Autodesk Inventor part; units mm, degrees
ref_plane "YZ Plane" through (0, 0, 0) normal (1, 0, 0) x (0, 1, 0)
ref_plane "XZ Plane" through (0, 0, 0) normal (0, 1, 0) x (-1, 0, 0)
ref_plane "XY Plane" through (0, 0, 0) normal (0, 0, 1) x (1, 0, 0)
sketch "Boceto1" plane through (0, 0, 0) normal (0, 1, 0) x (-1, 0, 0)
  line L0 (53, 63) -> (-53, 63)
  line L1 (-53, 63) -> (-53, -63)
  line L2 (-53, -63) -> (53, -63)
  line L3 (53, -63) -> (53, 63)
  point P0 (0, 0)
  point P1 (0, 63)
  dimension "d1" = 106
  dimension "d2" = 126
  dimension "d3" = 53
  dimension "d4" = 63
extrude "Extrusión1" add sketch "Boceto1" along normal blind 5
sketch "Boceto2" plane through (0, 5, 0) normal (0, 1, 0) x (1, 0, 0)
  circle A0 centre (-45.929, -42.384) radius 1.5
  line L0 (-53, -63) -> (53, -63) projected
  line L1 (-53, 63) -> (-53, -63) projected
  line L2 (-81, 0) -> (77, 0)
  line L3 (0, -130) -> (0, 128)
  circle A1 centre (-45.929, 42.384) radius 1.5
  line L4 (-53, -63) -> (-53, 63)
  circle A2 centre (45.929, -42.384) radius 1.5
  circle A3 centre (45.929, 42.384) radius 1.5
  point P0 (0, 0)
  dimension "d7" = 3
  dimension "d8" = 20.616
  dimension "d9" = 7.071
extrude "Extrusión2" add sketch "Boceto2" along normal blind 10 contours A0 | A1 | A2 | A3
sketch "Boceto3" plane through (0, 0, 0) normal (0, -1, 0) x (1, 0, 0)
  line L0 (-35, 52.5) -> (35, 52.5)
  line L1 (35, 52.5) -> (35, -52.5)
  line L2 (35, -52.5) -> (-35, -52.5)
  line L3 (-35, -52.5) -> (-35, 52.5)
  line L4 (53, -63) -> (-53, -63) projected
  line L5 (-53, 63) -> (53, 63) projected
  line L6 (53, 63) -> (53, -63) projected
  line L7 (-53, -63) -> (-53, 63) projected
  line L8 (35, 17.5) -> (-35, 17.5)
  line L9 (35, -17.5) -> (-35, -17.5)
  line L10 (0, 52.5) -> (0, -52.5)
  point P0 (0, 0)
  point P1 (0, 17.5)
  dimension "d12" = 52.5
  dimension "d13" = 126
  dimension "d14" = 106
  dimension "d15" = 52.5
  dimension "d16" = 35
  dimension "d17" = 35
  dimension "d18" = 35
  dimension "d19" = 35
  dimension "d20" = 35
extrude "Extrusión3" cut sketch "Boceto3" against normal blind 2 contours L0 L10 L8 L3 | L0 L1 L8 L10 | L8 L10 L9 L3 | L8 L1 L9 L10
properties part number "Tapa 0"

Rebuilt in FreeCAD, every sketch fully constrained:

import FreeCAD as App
import Part
import Sketcher

doc = App.newDocument("Part")
body = doc.addObject("PartDesign::Body", "Body")

# Sketch on XZ plane
sketch1 = body.newObject("Sketcher::SketchObject", "Sketch")
sketch1.AttachmentSupport = (doc.getObject("XZ_Plane"), [""])
sketch1.MapMode = "FlatFace"
sketch1.addGeometry(Part.LineSegment(App.Vector(-53, -63, 0), App.Vector(-53, 63, 0)), False)
sketch1.addGeometry(Part.LineSegment(App.Vector(-53, 63, 0), App.Vector(53, 63, 0)), False)
sketch1.addGeometry(Part.LineSegment(App.Vector(53, 63, 0), App.Vector(53, -63, 0)), False)
sketch1.addGeometry(Part.LineSegment(App.Vector(53, -63, 0), App.Vector(-53, -63, 0)), False)
sketch1.addConstraint(Sketcher.Constraint("Coincident", 0, 2, 1, 1))
sketch1.addConstraint(Sketcher.Constraint("Coincident", 1, 2, 2, 1))
sketch1.addConstraint(Sketcher.Constraint("Coincident", 2, 2, 3, 1))
sketch1.addConstraint(Sketcher.Constraint("Coincident", 3, 2, 0, 1))
sketch1.addConstraint(Sketcher.Constraint("Vertical", 0))
sketch1.addConstraint(Sketcher.Constraint("Horizontal", 1))
sketch1.addConstraint(Sketcher.Constraint("Vertical", 2))
sketch1.addConstraint(Sketcher.Constraint("Horizontal", 3))
sketch1.addConstraint(Sketcher.Constraint("Symmetric", 0, 2, 2, 2, -1, 1))
sketch1.addConstraint(Sketcher.Constraint("DistanceX", 1, 1, 1, 2, 106.0))
sketch1.addConstraint(Sketcher.Constraint("DistanceY", 0, 1, 0, 2, 126.0))
pad1 = body.newObject("PartDesign::Pad", "Pad")
pad1.Profile = sketch1
pad1.Length = 5
pad1.Reversed = True

# Sketch on XZ plane
sketch2 = body.newObject("Sketcher::SketchObject", "Sketch001")
sketch2.AttachmentSupport = (doc.getObject("XZ_Plane"), [""])
sketch2.MapMode = "FlatFace"
sketch2.AttachmentOffset = App.Placement(App.Vector(0, 0, -5), App.Rotation())
sketch2.addGeometry(Part.Circle(App.Vector(-45.929, 42.384, 0), App.Vector(0, 0, 1), 1.5), False)
sketch2.addGeometry(Part.Circle(App.Vector(-45.929, -42.384, 0), App.Vector(0, 0, 1), 1.5), False)
sketch2.addGeometry(Part.Circle(App.Vector(45.929, 42.384, 0), App.Vector(0, 0, 1), 1.5), False)
sketch2.addGeometry(Part.Circle(App.Vector(45.929, -42.384, 0), App.Vector(0, 0, 1), 1.5), False)
sketch2.addConstraint(Sketcher.Constraint("Equal", 0, 1))
sketch2.addConstraint(Sketcher.Constraint("Equal", 1, 2))
sketch2.addConstraint(Sketcher.Constraint("Equal", 2, 3))
sketch2.addConstraint(Sketcher.Constraint("Symmetric", 1, 3, 2, 3, -1, 1))
sketch2.addConstraint(Sketcher.Constraint("Symmetric", 0, 3, 3, 3, -1, 1))
sketch2.addConstraint(Sketcher.Constraint("Symmetric", 0, 3, 2, 3, -2))
sketch2.addConstraint(Sketcher.Constraint("Diameter", 0, 3.0))
sketch2.addConstraint(Sketcher.Constraint("DistanceX", 0, 3, -1, 1, 45.929))
sketch2.addConstraint(Sketcher.Constraint("DistanceY", -1, 1, 0, 3, 42.384))
pad2 = body.newObject("PartDesign::Pad", "Pad001")
pad2.Profile = sketch2
pad2.Length = 10
pad2.Reversed = True

# Sketch on XZ plane
sketch3 = body.newObject("Sketcher::SketchObject", "Sketch002")
sketch3.AttachmentSupport = (doc.getObject("XZ_Plane"), [""])
sketch3.MapMode = "FlatFace"
sketch3.addGeometry(Part.LineSegment(App.Vector(-35, 52.5, 0), App.Vector(-35, -17.5, 0)), False)
sketch3.addGeometry(Part.LineSegment(App.Vector(-35, -17.5, 0), App.Vector(35, -17.5, 0)), False)
sketch3.addGeometry(Part.LineSegment(App.Vector(35, -17.5, 0), App.Vector(35, 52.5, 0)), False)
sketch3.addGeometry(Part.LineSegment(App.Vector(35, 52.5, 0), App.Vector(-35, 52.5, 0)), False)
sketch3.addConstraint(Sketcher.Constraint("Coincident", 0, 2, 1, 1))
sketch3.addConstraint(Sketcher.Constraint("Coincident", 1, 2, 2, 1))
sketch3.addConstraint(Sketcher.Constraint("Coincident", 2, 2, 3, 1))
sketch3.addConstraint(Sketcher.Constraint("Coincident", 3, 2, 0, 1))
sketch3.addConstraint(Sketcher.Constraint("Vertical", 0))
sketch3.addConstraint(Sketcher.Constraint("Horizontal", 1))
sketch3.addConstraint(Sketcher.Constraint("Vertical", 2))
sketch3.addConstraint(Sketcher.Constraint("Horizontal", 3))
sketch3.addConstraint(Sketcher.Constraint("Equal", 3, 0))
sketch3.addConstraint(Sketcher.Constraint("DistanceX", 0, 2, -1, 1, 35.0))
sketch3.addConstraint(Sketcher.Constraint("DistanceX", -1, 1, 1, 2, 35.0))
sketch3.addConstraint(Sketcher.Constraint("DistanceY", -1, 1, 2, 2, 52.5))
pocket1 = body.newObject("PartDesign::Pocket", "Pocket")
pocket1.Profile = sketch3
pocket1.Length = 2

doc.recompute()
